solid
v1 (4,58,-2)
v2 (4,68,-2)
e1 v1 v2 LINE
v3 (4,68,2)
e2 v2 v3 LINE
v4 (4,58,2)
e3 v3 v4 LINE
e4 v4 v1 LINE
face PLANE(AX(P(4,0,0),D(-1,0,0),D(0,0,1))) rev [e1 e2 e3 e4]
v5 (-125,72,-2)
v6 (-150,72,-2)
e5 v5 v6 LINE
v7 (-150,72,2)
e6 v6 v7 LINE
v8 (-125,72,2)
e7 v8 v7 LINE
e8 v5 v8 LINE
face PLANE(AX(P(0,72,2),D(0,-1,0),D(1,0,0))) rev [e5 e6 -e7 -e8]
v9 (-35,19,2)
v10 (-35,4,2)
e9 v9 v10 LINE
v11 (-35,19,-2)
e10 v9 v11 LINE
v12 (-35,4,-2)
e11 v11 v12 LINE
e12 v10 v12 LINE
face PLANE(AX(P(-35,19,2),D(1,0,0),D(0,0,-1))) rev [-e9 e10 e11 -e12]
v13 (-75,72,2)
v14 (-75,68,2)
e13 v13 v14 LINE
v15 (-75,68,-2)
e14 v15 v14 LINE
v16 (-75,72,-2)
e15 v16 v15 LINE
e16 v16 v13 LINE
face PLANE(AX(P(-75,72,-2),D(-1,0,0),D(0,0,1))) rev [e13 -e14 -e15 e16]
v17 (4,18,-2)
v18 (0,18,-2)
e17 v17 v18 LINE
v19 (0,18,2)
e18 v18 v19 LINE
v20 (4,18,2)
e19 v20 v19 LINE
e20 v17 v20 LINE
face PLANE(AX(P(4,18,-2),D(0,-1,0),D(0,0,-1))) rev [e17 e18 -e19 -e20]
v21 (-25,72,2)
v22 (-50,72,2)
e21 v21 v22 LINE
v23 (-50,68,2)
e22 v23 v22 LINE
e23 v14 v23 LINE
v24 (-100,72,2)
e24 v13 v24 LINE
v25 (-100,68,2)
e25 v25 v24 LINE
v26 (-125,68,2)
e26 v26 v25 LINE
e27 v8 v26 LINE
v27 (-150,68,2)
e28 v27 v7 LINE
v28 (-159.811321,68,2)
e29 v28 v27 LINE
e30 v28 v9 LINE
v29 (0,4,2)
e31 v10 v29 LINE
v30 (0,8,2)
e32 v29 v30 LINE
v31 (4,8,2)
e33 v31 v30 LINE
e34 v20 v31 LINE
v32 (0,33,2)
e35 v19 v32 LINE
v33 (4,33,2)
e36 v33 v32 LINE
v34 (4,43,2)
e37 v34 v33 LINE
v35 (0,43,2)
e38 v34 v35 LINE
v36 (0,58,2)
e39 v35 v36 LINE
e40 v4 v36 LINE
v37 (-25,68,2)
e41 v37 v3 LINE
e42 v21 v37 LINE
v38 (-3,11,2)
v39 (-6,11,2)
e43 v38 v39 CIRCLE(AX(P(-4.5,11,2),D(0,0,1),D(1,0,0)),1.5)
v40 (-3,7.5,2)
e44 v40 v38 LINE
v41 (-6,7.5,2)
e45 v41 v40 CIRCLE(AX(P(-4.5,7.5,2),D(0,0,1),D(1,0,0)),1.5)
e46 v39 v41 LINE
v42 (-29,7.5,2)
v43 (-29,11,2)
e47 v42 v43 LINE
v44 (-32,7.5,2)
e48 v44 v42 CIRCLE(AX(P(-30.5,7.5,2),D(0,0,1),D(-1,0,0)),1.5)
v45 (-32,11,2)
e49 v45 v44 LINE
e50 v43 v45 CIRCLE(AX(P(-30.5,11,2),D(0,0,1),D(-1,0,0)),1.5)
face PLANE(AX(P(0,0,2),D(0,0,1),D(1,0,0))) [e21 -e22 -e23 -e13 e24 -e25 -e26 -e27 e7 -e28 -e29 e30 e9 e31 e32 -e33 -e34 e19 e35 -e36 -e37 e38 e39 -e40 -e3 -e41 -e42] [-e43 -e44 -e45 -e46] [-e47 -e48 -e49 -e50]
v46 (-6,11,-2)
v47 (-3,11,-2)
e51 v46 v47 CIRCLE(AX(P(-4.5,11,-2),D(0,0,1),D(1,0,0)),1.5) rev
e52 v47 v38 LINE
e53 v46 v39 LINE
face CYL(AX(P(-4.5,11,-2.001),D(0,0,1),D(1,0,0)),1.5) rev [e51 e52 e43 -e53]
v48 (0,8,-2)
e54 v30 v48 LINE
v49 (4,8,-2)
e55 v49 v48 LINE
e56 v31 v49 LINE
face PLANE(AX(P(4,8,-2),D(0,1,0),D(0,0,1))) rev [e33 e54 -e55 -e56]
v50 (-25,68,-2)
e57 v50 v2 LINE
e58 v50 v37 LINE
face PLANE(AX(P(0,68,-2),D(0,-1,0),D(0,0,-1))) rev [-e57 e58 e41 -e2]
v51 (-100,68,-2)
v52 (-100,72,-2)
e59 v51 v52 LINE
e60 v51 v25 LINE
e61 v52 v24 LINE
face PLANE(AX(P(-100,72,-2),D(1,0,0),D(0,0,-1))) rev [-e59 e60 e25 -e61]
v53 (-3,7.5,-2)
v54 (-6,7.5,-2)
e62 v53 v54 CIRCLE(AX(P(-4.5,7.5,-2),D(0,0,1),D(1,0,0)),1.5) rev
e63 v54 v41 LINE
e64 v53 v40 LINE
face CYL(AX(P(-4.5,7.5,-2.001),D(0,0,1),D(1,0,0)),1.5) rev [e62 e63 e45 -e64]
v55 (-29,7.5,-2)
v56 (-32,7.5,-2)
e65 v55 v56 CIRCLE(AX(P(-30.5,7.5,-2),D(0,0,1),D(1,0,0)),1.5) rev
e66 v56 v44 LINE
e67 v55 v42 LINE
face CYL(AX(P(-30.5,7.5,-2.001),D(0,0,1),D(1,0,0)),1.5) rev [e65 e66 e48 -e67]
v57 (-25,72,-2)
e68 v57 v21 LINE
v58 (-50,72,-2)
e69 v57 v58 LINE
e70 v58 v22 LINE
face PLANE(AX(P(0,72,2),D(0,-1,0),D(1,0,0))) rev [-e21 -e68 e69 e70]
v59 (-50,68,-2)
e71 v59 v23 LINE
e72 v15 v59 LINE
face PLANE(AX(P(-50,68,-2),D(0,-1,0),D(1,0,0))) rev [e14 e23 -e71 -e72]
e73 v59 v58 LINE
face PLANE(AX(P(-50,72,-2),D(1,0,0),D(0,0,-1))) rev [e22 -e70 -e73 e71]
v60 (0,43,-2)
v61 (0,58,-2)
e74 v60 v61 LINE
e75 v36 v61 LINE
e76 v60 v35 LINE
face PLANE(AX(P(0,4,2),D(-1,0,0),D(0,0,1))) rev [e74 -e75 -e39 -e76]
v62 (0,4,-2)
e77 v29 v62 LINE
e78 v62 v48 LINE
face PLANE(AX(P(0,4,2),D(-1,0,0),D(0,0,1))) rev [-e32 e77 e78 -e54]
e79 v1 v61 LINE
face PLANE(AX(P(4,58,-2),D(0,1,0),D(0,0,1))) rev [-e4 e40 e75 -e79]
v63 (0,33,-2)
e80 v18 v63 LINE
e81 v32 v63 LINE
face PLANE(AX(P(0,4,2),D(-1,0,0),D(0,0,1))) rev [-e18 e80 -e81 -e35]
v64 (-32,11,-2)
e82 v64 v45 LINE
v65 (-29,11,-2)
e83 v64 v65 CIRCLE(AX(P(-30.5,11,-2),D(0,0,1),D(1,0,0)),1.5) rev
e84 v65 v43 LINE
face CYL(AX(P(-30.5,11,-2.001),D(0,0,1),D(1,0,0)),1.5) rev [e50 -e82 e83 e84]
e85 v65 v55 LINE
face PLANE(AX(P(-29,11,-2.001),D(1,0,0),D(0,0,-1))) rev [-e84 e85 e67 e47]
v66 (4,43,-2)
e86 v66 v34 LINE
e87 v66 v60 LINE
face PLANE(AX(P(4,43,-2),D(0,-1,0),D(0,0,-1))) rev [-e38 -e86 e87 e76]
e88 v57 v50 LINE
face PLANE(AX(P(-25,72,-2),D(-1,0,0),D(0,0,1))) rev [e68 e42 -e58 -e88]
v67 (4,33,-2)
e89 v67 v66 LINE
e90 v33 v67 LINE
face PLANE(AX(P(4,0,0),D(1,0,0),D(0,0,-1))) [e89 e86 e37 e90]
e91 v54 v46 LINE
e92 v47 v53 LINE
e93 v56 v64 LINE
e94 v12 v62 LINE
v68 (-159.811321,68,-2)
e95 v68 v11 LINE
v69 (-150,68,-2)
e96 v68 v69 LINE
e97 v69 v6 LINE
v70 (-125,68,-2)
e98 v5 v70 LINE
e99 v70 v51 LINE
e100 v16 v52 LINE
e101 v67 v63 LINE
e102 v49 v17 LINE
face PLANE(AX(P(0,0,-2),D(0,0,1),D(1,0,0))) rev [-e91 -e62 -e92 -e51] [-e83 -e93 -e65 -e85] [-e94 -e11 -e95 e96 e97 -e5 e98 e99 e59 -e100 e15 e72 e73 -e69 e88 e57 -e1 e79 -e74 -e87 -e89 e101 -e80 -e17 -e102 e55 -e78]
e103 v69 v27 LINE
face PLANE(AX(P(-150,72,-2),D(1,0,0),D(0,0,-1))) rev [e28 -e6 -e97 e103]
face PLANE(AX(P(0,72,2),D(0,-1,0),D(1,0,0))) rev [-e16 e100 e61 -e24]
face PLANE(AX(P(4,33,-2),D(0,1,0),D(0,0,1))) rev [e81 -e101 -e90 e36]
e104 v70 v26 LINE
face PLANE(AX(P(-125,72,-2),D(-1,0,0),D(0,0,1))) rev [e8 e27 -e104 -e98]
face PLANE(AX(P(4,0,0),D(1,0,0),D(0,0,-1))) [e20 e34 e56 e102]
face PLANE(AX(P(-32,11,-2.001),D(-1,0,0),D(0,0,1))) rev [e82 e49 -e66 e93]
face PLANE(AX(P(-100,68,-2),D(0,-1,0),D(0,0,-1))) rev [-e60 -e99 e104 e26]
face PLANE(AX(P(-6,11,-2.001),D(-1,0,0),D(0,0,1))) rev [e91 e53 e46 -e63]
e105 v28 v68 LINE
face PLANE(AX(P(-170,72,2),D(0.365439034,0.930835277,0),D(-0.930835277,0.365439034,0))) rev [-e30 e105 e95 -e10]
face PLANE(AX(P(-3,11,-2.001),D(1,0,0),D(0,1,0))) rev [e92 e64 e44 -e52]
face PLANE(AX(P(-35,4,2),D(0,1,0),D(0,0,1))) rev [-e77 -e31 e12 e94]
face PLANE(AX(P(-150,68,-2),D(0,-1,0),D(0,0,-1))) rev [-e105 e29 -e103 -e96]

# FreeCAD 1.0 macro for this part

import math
import FreeCAD as App
import Part
import Sketcher

doc = App.newDocument("Part")
body = doc.addObject("PartDesign::Body", "Body")

# Sketch on XY plane
sketch1 = body.newObject("Sketcher::SketchObject", "Sketch")
sketch1.AttachmentSupport = (doc.getObject("XY_Plane"), [""])
sketch1.MapMode = "FlatFace"
sketch1.addGeometry([
    Part.LineSegment(App.Vector(0, 4, 0), App.Vector(0, 72, 0)),  # 0
    Part.LineSegment(App.Vector(0, 72, 0), App.Vector(-170, 72, 0)),  # 1
    Part.LineSegment(App.Vector(-170, 72, 0), App.Vector(-35, 19, 0)),  # 2
    Part.LineSegment(App.Vector(-35, 19, 0), App.Vector(-35, 4, 0)),  # 3
    Part.LineSegment(App.Vector(-35, 4, 0), App.Vector(0, 4, 0)),  # 4
], False)
sketch1.addConstraint([
    Sketcher.Constraint("Coincident", 0, 2, 1, 1),
    Sketcher.Constraint("Coincident", 1, 2, 2, 1),
    Sketcher.Constraint("Coincident", 2, 2, 3, 1),
    Sketcher.Constraint("Coincident", 3, 2, 4, 1),
    Sketcher.Constraint("Coincident", 4, 2, 0, 1),
    Sketcher.Constraint("Vertical", 0),
    Sketcher.Constraint("Horizontal", 1),
    Sketcher.Constraint("Vertical", 3),
    Sketcher.Constraint("Horizontal", 4),
    Sketcher.Constraint("PointOnObject", 0, 2, -2),
    Sketcher.Constraint("DistanceX", 1, 2, 1, 1, 170.0),
    Sketcher.Constraint("DistanceX", 4, 1, 4, 2, 35.0),
    Sketcher.Constraint("DistanceY", 0, 1, 0, 2, 68.0),
    Sketcher.Constraint("DistanceY", 3, 2, 3, 1, 15.0),
    Sketcher.Constraint("DistanceY", -1, 1, 0, 2, 72.0),
])
pad1 = body.newObject("PartDesign::Pad", "Pad")
pad1.Profile = sketch1
pad1.Length = 4
pad1.Midplane = True

# Sketch on XY plane
sketch2 = body.newObject("Sketcher::SketchObject", "Sketch001")
sketch2.AttachmentSupport = (doc.getObject("XY_Plane"), [""])
sketch2.MapMode = "FlatFace"
sketch2.AttachmentOffset = App.Placement(App.Vector(0, 0, 2), App.Rotation())
sketch2.addGeometry([
    Part.LineSegment(App.Vector(-3, 7.5, 0), App.Vector(-3, 11, 0)),
    Part.ArcOfCircle(Part.Circle(App.Vector(-4.5, 11, 0), App.Vector(0, 0, 1), 1.5), math.radians(0), math.radians(180)),
    Part.LineSegment(App.Vector(-6, 11, 0), App.Vector(-6, 7.5, 0)),
    Part.ArcOfCircle(Part.Circle(App.Vector(-4.5, 7.5, 0), App.Vector(0, 0, 1), 1.5), math.radians(180), math.radians(360)),
], False)
sketch2.addConstraint([
    Sketcher.Constraint("Tangent", 0, 2, 1, 1),
    Sketcher.Constraint("Tangent", 1, 2, 2, 1),
    Sketcher.Constraint("Tangent", 2, 2, 3, 1),
    Sketcher.Constraint("Tangent", 3, 2, 0, 1),
    Sketcher.Constraint("Vertical", 0),
    Sketcher.Constraint("Vertical", 2),
    Sketcher.Constraint("Radius", 1, 1.5),
    Sketcher.Constraint("DistanceY", 0, 1, 0, 2, 3.5),
    Sketcher.Constraint("DistanceY", -1, 1, 1, 3, 11.0),
    Sketcher.Constraint("DistanceX", 0, 2, -1, 1, 3.0),
])
pocket1 = body.newObject("PartDesign::Pocket", "Pocket")
pocket1.Profile = sketch2
pocket1.Type = "UpToFirst"

# Sketch on XY plane
sketch3 = body.newObject("Sketcher::SketchObject", "Sketch002")
sketch3.AttachmentSupport = (doc.getObject("XY_Plane"), [""])
sketch3.MapMode = "FlatFace"
sketch3.AttachmentOffset = App.Placement(App.Vector(0, 0, 2), App.Rotation())
sketch3.addGeometry([
    Part.LineSegment(App.Vector(-32, 11, 0), App.Vector(-32, 7.5, 0)),
    Part.ArcOfCircle(Part.Circle(App.Vector(-30.5, 7.5, 0), App.Vector(0, 0, 1), 1.5), math.radians(180), math.radians(360)),
    Part.LineSegment(App.Vector(-29, 7.5, 0), App.Vector(-29, 11, 0)),
    Part.ArcOfCircle(Part.Circle(App.Vector(-30.5, 11, 0), App.Vector(0, 0, 1), 1.5), math.radians(0), math.radians(180)),
], False)
sketch3.addConstraint([
    Sketcher.Constraint("Tangent", 0, 2, 1, 1),
    Sketcher.Constraint("Tangent", 1, 2, 2, 1),
    Sketcher.Constraint("Tangent", 2, 2, 3, 1),
    Sketcher.Constraint("Tangent", 3, 2, 0, 1),
    Sketcher.Constraint("Vertical", 0),
    Sketcher.Constraint("Vertical", 2),
    Sketcher.Constraint("Radius", 1, 1.5),
    Sketcher.Constraint("DistanceY", 0, 2, 0, 1, 3.5),
    Sketcher.Constraint("DistanceY", -1, 1, 3, 3, 11.0),
    Sketcher.Constraint("DistanceX", 0, 2, -1, 1, 32.0),
])
pocket2 = body.newObject("PartDesign::Pocket", "Pocket001")
pocket2.Profile = sketch3
pocket2.Type = "UpToFirst"

# Sketch on XY plane
sketch4 = body.newObject("Sketcher::SketchObject", "Sketch003")
sketch4.AttachmentSupport = (doc.getObject("XY_Plane"), [""])
sketch4.MapMode = "FlatFace"
sketch4.AttachmentOffset = App.Placement(App.Vector(0, 0, 2), App.Rotation())
sketch4.addGeometry([
    Part.LineSegment(App.Vector(-75, 72, 0), App.Vector(-75, 68, 0)),  # 0
    Part.LineSegment(App.Vector(-75, 68, 0), App.Vector(-50, 68, 0)),  # 1
    Part.LineSegment(App.Vector(-50, 68, 0), App.Vector(-50, 72, 0)),  # 2
    Part.LineSegment(App.Vector(-50, 72, 0), App.Vector(-75, 72, 0)),  # 3
    Part.LineSegment(App.Vector(-25, 72, 0), App.Vector(-25, 68, 0)),  # 4
    Part.LineSegment(App.Vector(-25, 68, 0), App.Vector(0, 68, 0)),  # 5
    Part.LineSegment(App.Vector(0, 68, 0), App.Vector(0, 72, 0)),  # 6
    Part.LineSegment(App.Vector(0, 72, 0), App.Vector(-25, 72, 0)),  # 7
    Part.LineSegment(App.Vector(-125, 72, 0), App.Vector(-125, 68, 0)),  # 8
    Part.LineSegment(App.Vector(-125, 68, 0), App.Vector(-100, 68, 0)),  # 9
    Part.LineSegment(App.Vector(-100, 68, 0), App.Vector(-100, 72, 0)),  # 10
    Part.LineSegment(App.Vector(-100, 72, 0), App.Vector(-125, 72, 0)),  # 11
    Part.LineSegment(App.Vector(-175, 72, 0), App.Vector(-175, 68, 0)),  # 12
    Part.LineSegment(App.Vector(-175, 68, 0), App.Vector(-150, 68, 0)),  # 13
    Part.LineSegment(App.Vector(-150, 68, 0), App.Vector(-150, 72, 0)),  # 14
    Part.LineSegment(App.Vector(-150, 72, 0), App.Vector(-175, 72, 0)),  # 15
    Part.LineSegment(App.Vector(-225, 72, 0), App.Vector(-225, 68, 0)),  # 16
    Part.LineSegment(App.Vector(-225, 68, 0), App.Vector(-200, 68, 0)),  # 17
    Part.LineSegment(App.Vector(-200, 68, 0), App.Vector(-200, 72, 0)),  # 18
    Part.LineSegment(App.Vector(-200, 72, 0), App.Vector(-225, 72, 0)),  # 19
    Part.LineSegment(App.Vector(-275, 72, 0), App.Vector(-275, 68, 0)),  # 20
    Part.LineSegment(App.Vector(-275, 68, 0), App.Vector(-250, 68, 0)),  # 21
    Part.LineSegment(App.Vector(-250, 68, 0), App.Vector(-250, 72, 0)),  # 22
    Part.LineSegment(App.Vector(-250, 72, 0), App.Vector(-275, 72, 0)),  # 23
    Part.LineSegment(App.Vector(-325, 72, 0), App.Vector(-325, 68, 0)),  # 24
    Part.LineSegment(App.Vector(-325, 68, 0), App.Vector(-300, 68, 0)),  # 25
    Part.LineSegment(App.Vector(-300, 68, 0), App.Vector(-300, 72, 0)),  # 26
    Part.LineSegment(App.Vector(-300, 72, 0), App.Vector(-325, 72, 0)),  # 27
    Part.LineSegment(App.Vector(-375, 72, 0), App.Vector(-375, 68, 0)),  # 28
    Part.LineSegment(App.Vector(-375, 68, 0), App.Vector(-350, 68, 0)),  # 29
    Part.LineSegment(App.Vector(-350, 68, 0), App.Vector(-350, 72, 0)),  # 30
    Part.LineSegment(App.Vector(-350, 72, 0), App.Vector(-375, 72, 0)),  # 31
    Part.LineSegment(App.Vector(-425, 72, 0), App.Vector(-425, 68, 0)),  # 32
    Part.LineSegment(App.Vector(-425, 68, 0), App.Vector(-400, 68, 0)),  # 33
    Part.LineSegment(App.Vector(-400, 68, 0), App.Vector(-400, 72, 0)),  # 34
    Part.LineSegment(App.Vector(-400, 72, 0), App.Vector(-425, 72, 0)),  # 35
    Part.LineSegment(App.Vector(-475, 72, 0), App.Vector(-475, 68, 0)),  # 36
    Part.LineSegment(App.Vector(-475, 68, 0), App.Vector(-450, 68, 0)),  # 37
    Part.LineSegment(App.Vector(-450, 68, 0), App.Vector(-450, 72, 0)),  # 38
    Part.LineSegment(App.Vector(-450, 72, 0), App.Vector(-475, 72, 0)),  # 39
], False)
sketch4.addConstraint([
    Sketcher.Constraint("Coincident", 0, 2, 1, 1),
    Sketcher.Constraint("Coincident", 1, 2, 2, 1),
    Sketcher.Constraint("Coincident", 2, 2, 3, 1),
    Sketcher.Constraint("Coincident", 3, 2, 0, 1),
    Sketcher.Constraint("Coincident", 4, 2, 5, 1),
    Sketcher.Constraint("Coincident", 5, 2, 6, 1),
    Sketcher.Constraint("Coincident", 6, 2, 7, 1),
    Sketcher.Constraint("Coincident", 7, 2, 4, 1),
    Sketcher.Constraint("Coincident", 8, 2, 9, 1),
    Sketcher.Constraint("Coincident", 9, 2, 10, 1),
    Sketcher.Constraint("Coincident", 10, 2, 11, 1),
    Sketcher.Constraint("Coincident", 11, 2, 8, 1),
    Sketcher.Constraint("Coincident", 12, 2, 13, 1),
    Sketcher.Constraint("Coincident", 13, 2, 14, 1),
    Sketcher.Constraint("Coincident", 14, 2, 15, 1),
    Sketcher.Constraint("Coincident", 15, 2, 12, 1),
    Sketcher.Constraint("Coincident", 16, 2, 17, 1),
    Sketcher.Constraint("Coincident", 17, 2, 18, 1),
    Sketcher.Constraint("Coincident", 18, 2, 19, 1),
    Sketcher.Constraint("Coincident", 19, 2, 16, 1),
    Sketcher.Constraint("Coincident", 20, 2, 21, 1),
    Sketcher.Constraint("Coincident", 21, 2, 22, 1),
    Sketcher.Constraint("Coincident", 22, 2, 23, 1),
    Sketcher.Constraint("Coincident", 23, 2, 20, 1),
    Sketcher.Constraint("Coincident", 24, 2, 25, 1),
    Sketcher.Constraint("Coincident", 25, 2, 26, 1),
    Sketcher.Constraint("Coincident", 26, 2, 27, 1),
    Sketcher.Constraint("Coincident", 27, 2, 24, 1),
    Sketcher.Constraint("Coincident", 28, 2, 29, 1),
    Sketcher.Constraint("Coincident", 29, 2, 30, 1),
    Sketcher.Constraint("Coincident", 30, 2, 31, 1),
    Sketcher.Constraint("Coincident", 31, 2, 28, 1),
    Sketcher.Constraint("Coincident", 32, 2, 33, 1),
    Sketcher.Constraint("Coincident", 33, 2, 34, 1),
    Sketcher.Constraint("Coincident", 34, 2, 35, 1),
    Sketcher.Constraint("Coincident", 35, 2, 32, 1),
    Sketcher.Constraint("Coincident", 36, 2, 37, 1),
    Sketcher.Constraint("Coincident", 37, 2, 38, 1),
    Sketcher.Constraint("Coincident", 38, 2, 39, 1),
    Sketcher.Constraint("Coincident", 39, 2, 36, 1),
    Sketcher.Constraint("Vertical", 0),
    Sketcher.Constraint("Horizontal", 1),
    Sketcher.Constraint("Vertical", 2),
    Sketcher.Constraint("Horizontal", 3),
    Sketcher.Constraint("Vertical", 4),
    Sketcher.Constraint("Horizontal", 5),
    Sketcher.Constraint("Vertical", 6),
    Sketcher.Constraint("Horizontal", 7),
    Sketcher.Constraint("Vertical", 8),
    Sketcher.Constraint("Horizontal", 9),
    Sketcher.Constraint("Vertical", 10),
    Sketcher.Constraint("Horizontal", 11),
    Sketcher.Constraint("Vertical", 12),
    Sketcher.Constraint("Horizontal", 13),
    Sketcher.Constraint("Vertical", 14),
    Sketcher.Constraint("Horizontal", 15),
    Sketcher.Constraint("Vertical", 16),
    Sketcher.Constraint("Horizontal", 17),
    Sketcher.Constraint("Vertical", 18),
    Sketcher.Constraint("Horizontal", 19),
    Sketcher.Constraint("Vertical", 20),
    Sketcher.Constraint("Horizontal", 21),
    Sketcher.Constraint("Vertical", 22),
    Sketcher.Constraint("Horizontal", 23),
    Sketcher.Constraint("Vertical", 24),
    Sketcher.Constraint("Horizontal", 25),
    Sketcher.Constraint("Vertical", 26),
    Sketcher.Constraint("Horizontal", 27),
    Sketcher.Constraint("Vertical", 28),
    Sketcher.Constraint("Horizontal", 29),
    Sketcher.Constraint("Vertical", 30),
    Sketcher.Constraint("Horizontal", 31),
    Sketcher.Constraint("Vertical", 32),
    Sketcher.Constraint("Horizontal", 33),
    Sketcher.Constraint("Vertical", 34),
    Sketcher.Constraint("Horizontal", 35),
    Sketcher.Constraint("Vertical", 36),
    Sketcher.Constraint("Horizontal", 37),
    Sketcher.Constraint("Vertical", 38),
    Sketcher.Constraint("Horizontal", 39),
    Sketcher.Constraint("PointOnObject", 5, 2, -2),
    Sketcher.Constraint("Horizontal", 1, 2, 4, 2),
    Sketcher.Constraint("Horizontal", 3, 2, 6, 2),
    Sketcher.Constraint("Horizontal", 5, 2, 8, 2),
    Sketcher.Constraint("Horizontal", 7, 2, 10, 2),
    Sketcher.Constraint("Horizontal", 9, 2, 12, 2),
    Sketcher.Constraint("Horizontal", 11, 2, 14, 2),
    Sketcher.Constraint("Horizontal", 13, 2, 16, 2),
    Sketcher.Constraint("Horizontal", 15, 2, 18, 2),
    Sketcher.Constraint("Horizontal", 17, 2, 20, 2),
    Sketcher.Constraint("Horizontal", 19, 2, 22, 2),
    Sketcher.Constraint("Horizontal", 21, 2, 24, 2),
    Sketcher.Constraint("Horizontal", 23, 2, 26, 2),
    Sketcher.Constraint("Horizontal", 25, 2, 28, 2),
    Sketcher.Constraint("Horizontal", 27, 2, 30, 2),
    Sketcher.Constraint("Horizontal", 29, 2, 32, 2),
    Sketcher.Constraint("Horizontal", 31, 2, 34, 2),
    Sketcher.Constraint("Horizontal", 33, 2, 36, 2),
    Sketcher.Constraint("Horizontal", 35, 2, 38, 2),
    Sketcher.Constraint("Equal", 3, 5),
    Sketcher.Constraint("Equal", 7, 9),
    Sketcher.Constraint("Equal", 11, 13),
    Sketcher.Constraint("Equal", 15, 17),
    Sketcher.Constraint("Equal", 19, 21),
    Sketcher.Constraint("Equal", 23, 25),
    Sketcher.Constraint("Equal", 27, 29),
    Sketcher.Constraint("Equal", 31, 33),
    Sketcher.Constraint("Equal", 35, 37),
    Sketcher.Constraint("DistanceX", 1, 1, 1, 2, 25.0),
    Sketcher.Constraint("DistanceY", 0, 2, 0, 1, 4.0),
    Sketcher.Constraint("DistanceX", 0, 2, -1, 1, 75.0),
    Sketcher.Constraint("DistanceY", -1, 1, 0, 2, 68.0),
    Sketcher.Constraint("DistanceX", 8, 2, -1, 1, 125.0),
    Sketcher.Constraint("DistanceX", 12, 2, -1, 1, 175.0),
    Sketcher.Constraint("DistanceX", 16, 2, -1, 1, 225.0),
    Sketcher.Constraint("DistanceX", 20, 2, -1, 1, 275.0),
    Sketcher.Constraint("DistanceX", 24, 2, -1, 1, 325.0),
    Sketcher.Constraint("DistanceX", 28, 2, -1, 1, 375.0),
    Sketcher.Constraint("DistanceX", 32, 2, -1, 1, 425.0),
    Sketcher.Constraint("DistanceX", 36, 2, -1, 1, 475.0),
])
pocket3 = body.newObject("PartDesign::Pocket", "Pocket002")
pocket3.Profile = sketch4
pocket3.Type = "ThroughAll"

# Sketch on YZ plane
sketch5 = body.newObject("Sketcher::SketchObject", "Sketch004")
sketch5.AttachmentSupport = (doc.getObject("YZ_Plane"), [""])
sketch5.MapMode = "FlatFace"
sketch5.addGeometry([
    Part.LineSegment(App.Vector(68, 2, 0), App.Vector(58, 2, 0)),  # 0
    Part.LineSegment(App.Vector(58, 2, 0), App.Vector(58, -2, 0)),  # 1
    Part.LineSegment(App.Vector(58, -2, 0), App.Vector(68, -2, 0)),  # 2
    Part.LineSegment(App.Vector(68, -2, 0), App.Vector(68, 2, 0)),  # 3
    Part.LineSegment(App.Vector(43, 2, 0), App.Vector(33, 2, 0)),  # 4
    Part.LineSegment(App.Vector(33, 2, 0), App.Vector(33, -2, 0)),  # 5
    Part.LineSegment(App.Vector(33, -2, 0), App.Vector(43, -2, 0)),  # 6
    Part.LineSegment(App.Vector(43, -2, 0), App.Vector(43, 2, 0)),  # 7
    Part.LineSegment(App.Vector(18, 2, 0), App.Vector(8, 2, 0)),  # 8
    Part.LineSegment(App.Vector(8, 2, 0), App.Vector(8, -2, 0)),  # 9
    Part.LineSegment(App.Vector(8, -2, 0), App.Vector(18, -2, 0)),  # 10
    Part.LineSegment(App.Vector(18, -2, 0), App.Vector(18, 2, 0)),  # 11
], False)
sketch5.addConstraint([
    Sketcher.Constraint("Coincident", 0, 2, 1, 1),
    Sketcher.Constraint("Coincident", 1, 2, 2, 1),
    Sketcher.Constraint("Coincident", 2, 2, 3, 1),
    Sketcher.Constraint("Coincident", 3, 2, 0, 1),
    Sketcher.Constraint("Coincident", 4, 2, 5, 1),
    Sketcher.Constraint("Coincident", 5, 2, 6, 1),
    Sketcher.Constraint("Coincident", 6, 2, 7, 1),
    Sketcher.Constraint("Coincident", 7, 2, 4, 1),
    Sketcher.Constraint("Coincident", 8, 2, 9, 1),
    Sketcher.Constraint("Coincident", 9, 2, 10, 1),
    Sketcher.Constraint("Coincident", 10, 2, 11, 1),
    Sketcher.Constraint("Coincident", 11, 2, 8, 1),
    Sketcher.Constraint("Horizontal", 0),
    Sketcher.Constraint("Vertical", 1),
    Sketcher.Constraint("Horizontal", 2),
    Sketcher.Constraint("Vertical", 3),
    Sketcher.Constraint("Horizontal", 4),
    Sketcher.Constraint("Vertical", 5),
    Sketcher.Constraint("Horizontal", 6),
    Sketcher.Constraint("Vertical", 7),
    Sketcher.Constraint("Horizontal", 8),
    Sketcher.Constraint("Vertical", 9),
    Sketcher.Constraint("Horizontal", 10),
    Sketcher.Constraint("Vertical", 11),
    Sketcher.Constraint("Horizontal", 3, 2, 4, 2),
    Sketcher.Constraint("Horizontal", 2, 2, 5, 2),
    Sketcher.Constraint("Horizontal", 7, 2, 8, 2),
    Sketcher.Constraint("Horizontal", 6, 2, 9, 2),
    Sketcher.Constraint("Equal", 2, 4),
    Sketcher.Constraint("Equal", 6, 8),
    Sketcher.Constraint("DistanceX", 0, 2, 0, 1, 10.0),
    Sketcher.Constraint("DistanceY", 1, 2, 1, 1, 4.0),
    Sketcher.Constraint("DistanceX", -1, 1, 0, 2, 58.0),
    Sketcher.Constraint("DistanceY", -1, 1, 0, 2, 2.0),
    Sketcher.Constraint("DistanceX", -1, 1, 4, 2, 33.0),
    Sketcher.Constraint("DistanceX", -1, 1, 8, 2, 8.0),
])
pad2 = body.newObject("PartDesign::Pad", "Pad001")
pad2.Profile = sketch5
pad2.Length = 4

doc.recompute()
